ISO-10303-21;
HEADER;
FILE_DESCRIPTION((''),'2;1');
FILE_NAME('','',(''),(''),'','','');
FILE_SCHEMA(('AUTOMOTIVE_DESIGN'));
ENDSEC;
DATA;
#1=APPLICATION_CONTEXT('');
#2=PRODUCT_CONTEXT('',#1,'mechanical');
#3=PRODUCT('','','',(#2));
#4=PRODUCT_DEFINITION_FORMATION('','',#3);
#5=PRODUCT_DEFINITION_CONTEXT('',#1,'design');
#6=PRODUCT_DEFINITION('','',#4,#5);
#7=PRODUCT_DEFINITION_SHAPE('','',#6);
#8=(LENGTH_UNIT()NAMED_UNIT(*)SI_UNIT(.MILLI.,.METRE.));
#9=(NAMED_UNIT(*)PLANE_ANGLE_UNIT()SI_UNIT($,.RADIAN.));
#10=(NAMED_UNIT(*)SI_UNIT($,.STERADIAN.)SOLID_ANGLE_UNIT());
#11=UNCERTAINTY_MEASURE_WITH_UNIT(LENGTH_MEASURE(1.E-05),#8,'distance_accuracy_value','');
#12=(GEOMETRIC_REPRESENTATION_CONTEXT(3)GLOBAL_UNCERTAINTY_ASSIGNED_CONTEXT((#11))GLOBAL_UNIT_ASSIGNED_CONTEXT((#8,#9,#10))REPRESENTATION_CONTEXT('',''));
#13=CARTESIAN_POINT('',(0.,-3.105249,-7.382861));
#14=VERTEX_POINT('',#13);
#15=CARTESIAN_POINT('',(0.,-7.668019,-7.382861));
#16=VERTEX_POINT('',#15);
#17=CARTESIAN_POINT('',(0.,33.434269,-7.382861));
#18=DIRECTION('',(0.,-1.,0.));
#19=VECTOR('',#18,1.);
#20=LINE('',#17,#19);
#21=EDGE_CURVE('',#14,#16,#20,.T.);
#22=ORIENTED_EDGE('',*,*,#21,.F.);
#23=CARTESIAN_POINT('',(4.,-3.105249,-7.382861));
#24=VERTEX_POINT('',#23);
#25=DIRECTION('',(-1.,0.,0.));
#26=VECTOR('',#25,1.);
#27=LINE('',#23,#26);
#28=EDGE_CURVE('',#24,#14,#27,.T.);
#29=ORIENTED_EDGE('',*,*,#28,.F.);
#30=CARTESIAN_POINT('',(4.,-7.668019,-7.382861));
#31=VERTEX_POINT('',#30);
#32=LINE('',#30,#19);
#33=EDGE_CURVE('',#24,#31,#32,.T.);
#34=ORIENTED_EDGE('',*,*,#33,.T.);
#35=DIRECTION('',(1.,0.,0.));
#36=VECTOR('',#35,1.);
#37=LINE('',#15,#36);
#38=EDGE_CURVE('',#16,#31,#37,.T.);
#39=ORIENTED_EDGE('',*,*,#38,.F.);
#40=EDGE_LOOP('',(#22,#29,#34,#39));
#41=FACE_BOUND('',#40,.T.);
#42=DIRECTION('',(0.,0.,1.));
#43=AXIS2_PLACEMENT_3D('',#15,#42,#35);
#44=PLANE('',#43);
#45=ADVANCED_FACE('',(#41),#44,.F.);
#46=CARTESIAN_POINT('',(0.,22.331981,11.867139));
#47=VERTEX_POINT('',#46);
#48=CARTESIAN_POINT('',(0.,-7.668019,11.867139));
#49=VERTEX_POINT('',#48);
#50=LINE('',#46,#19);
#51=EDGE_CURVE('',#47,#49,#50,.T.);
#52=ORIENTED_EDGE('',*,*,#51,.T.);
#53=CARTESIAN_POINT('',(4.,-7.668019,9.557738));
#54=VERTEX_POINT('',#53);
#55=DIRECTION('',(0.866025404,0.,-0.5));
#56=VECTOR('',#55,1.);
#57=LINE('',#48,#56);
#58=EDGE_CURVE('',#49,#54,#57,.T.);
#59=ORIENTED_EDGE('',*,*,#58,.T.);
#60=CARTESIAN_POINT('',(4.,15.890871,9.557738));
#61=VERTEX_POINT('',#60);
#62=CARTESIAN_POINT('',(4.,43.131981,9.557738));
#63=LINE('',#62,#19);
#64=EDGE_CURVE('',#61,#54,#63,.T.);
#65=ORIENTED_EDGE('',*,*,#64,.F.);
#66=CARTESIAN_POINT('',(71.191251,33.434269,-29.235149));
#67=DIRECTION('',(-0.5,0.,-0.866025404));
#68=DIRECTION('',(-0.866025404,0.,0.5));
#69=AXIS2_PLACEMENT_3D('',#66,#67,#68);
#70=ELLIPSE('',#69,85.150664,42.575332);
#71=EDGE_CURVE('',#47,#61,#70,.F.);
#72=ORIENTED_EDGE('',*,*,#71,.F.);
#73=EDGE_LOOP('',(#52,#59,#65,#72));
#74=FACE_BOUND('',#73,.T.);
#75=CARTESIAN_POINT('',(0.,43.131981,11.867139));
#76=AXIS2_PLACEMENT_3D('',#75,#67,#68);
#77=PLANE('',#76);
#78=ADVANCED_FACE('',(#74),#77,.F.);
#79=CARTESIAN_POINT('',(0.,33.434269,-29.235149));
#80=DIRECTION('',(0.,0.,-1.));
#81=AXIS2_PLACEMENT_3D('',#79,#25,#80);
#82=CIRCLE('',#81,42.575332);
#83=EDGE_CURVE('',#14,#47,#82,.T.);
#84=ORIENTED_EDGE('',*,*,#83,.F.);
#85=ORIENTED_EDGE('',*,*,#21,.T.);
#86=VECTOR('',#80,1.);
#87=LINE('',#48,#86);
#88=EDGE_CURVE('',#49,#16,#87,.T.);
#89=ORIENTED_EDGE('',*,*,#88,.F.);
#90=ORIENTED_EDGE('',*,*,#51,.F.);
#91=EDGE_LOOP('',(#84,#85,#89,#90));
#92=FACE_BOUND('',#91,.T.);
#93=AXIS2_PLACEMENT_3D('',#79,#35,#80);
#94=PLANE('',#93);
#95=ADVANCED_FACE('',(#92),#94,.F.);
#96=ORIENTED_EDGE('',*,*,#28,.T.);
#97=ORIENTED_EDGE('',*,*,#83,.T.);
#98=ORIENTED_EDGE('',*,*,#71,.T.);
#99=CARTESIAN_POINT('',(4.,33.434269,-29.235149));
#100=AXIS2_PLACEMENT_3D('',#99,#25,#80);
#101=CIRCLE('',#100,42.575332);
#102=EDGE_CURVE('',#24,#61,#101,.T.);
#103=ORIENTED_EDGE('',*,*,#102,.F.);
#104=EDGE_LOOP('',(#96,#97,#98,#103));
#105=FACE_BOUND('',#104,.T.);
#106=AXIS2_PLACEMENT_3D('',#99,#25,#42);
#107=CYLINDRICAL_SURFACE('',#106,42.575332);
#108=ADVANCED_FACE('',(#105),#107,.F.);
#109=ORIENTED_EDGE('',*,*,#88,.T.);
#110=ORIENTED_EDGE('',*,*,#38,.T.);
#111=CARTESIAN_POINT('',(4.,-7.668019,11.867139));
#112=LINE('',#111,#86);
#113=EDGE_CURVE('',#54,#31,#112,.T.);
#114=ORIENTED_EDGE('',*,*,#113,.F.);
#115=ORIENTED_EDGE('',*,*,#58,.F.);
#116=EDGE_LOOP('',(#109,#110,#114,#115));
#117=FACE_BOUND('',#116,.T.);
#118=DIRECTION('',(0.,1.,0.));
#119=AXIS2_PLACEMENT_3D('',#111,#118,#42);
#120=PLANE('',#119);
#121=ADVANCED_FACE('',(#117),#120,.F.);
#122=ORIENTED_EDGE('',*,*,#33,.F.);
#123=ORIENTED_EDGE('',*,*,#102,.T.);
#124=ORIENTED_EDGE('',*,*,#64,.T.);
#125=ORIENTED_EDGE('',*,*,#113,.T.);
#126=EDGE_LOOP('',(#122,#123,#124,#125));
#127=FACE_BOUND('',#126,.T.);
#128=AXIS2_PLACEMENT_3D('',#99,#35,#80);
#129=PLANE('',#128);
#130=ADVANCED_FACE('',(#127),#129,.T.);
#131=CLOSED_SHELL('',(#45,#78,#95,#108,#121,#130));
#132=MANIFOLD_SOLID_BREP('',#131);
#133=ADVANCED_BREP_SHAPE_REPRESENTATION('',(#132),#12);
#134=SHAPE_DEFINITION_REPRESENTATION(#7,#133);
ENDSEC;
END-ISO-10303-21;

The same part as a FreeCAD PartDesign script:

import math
import FreeCAD as App
import Part
import Sketcher

V = App.Vector
Q = App.Units.Quantity

doc = App.newDocument("Part")
body = doc.addObject("PartDesign::Body", "Body")

# Sketch on YZ plane
sketch1 = body.newObject("Sketcher::SketchObject", "Sketch")
sketch1.AttachmentSupport = (doc.getObject("YZ_Plane"), [""])
sketch1.MapMode = "FlatFace"
sketch1.addGeometry([
    Part.LineSegment(V(22, 12, 0), V(-8, 12, 0)),
    Part.LineSegment(V(-8, 12, 0), V(-8, -18, 0)),
    Part.ArcOfCircle(Part.Circle(V(33, -29, 0), V(0, 0, 1), 43), math.radians(105), math.radians(165)),
], False)
sketch1.addConstraint([
    Sketcher.Constraint("Coincident", 0, 2, 1, 1),
    Sketcher.Constraint("Coincident", 1, 2, 2, 2),
    Sketcher.Constraint("Coincident", 2, 1, 0, 1),
    Sketcher.Constraint("Horizontal", 0),
    Sketcher.Constraint("Vertical", 1),
    Sketcher.Constraint("Equal", 0, 1),
    Sketcher.Constraint("DistanceX", 0, 2, 0, 1, 30.0),
    Sketcher.Constraint("Radius", 2, 42.575332),
    Sketcher.Constraint("DistanceX", -1, 1, 2, 3, 33.434269),
    Sketcher.Constraint("DistanceY", 2, 3, -1, 1, 29.235149),
])
pad1 = body.newObject("PartDesign::Pad", "Pad")
pad1.Profile = sketch1
pad1.Length = 4

# Sketch on YZ plane
sketch2 = body.newObject("Sketcher::SketchObject", "Sketch001")
sketch2.AttachmentSupport = (doc.getObject("YZ_Plane"), [""])
sketch2.MapMode = "FlatFace"
sketch2.AttachmentOffset = App.Placement(V(0, 0, 4), App.Rotation())
sketch2.addGeometry([
    Part.LineSegment(V(13, -7, 0), V(-8, -7, 0)),
    Part.LineSegment(V(-8, -7, 0), V(-8, -18, 0)),
    Part.LineSegment(V(-8, -18, 0), V(13, -18, 0)),
    Part.LineSegment(V(13, -18, 0), V(13, -7, 0)),
], False)
sketch2.addConstraint([
    Sketcher.Constraint("Coincident", 0, 2, 1, 1),
    Sketcher.Constraint("Coincident", 1, 2, 2, 1),
    Sketcher.Constraint("Coincident", 2, 2, 3, 1),
    Sketcher.Constraint("Coincident", 3, 2, 0, 1),
    Sketcher.Constraint("Horizontal", 0),
    Sketcher.Constraint("Vertical", 1),
    Sketcher.Constraint("Horizontal", 2),
    Sketcher.Constraint("Vertical", 3),
    Sketcher.Constraint("DistanceY", 1, 2, 1, 1, 10.75),
    Sketcher.Constraint("DistanceX", 0, 2, 0, 1, 20.327264),
    Sketcher.Constraint("DistanceX", 0, 2, -1, 1, 7.668019),
    Sketcher.Constraint("DistanceY", 0, 2, -1, 1, 7.382861),
])
pocket1 = body.newObject("PartDesign::Pocket", "Pocket")
pocket1.Profile = sketch2
pocket1.Length = 4

# Sketch on XZ plane
sketch3 = body.newObject("Sketcher::SketchObject", "Sketch002")
sketch3.AttachmentSupport = (doc.getObject("XZ_Plane"), [""])
sketch3.MapMode = "FlatFace"
sketch3.AttachmentOffset = App.Placement(V(0, 0, 7.668019), App.Rotation())
sketch3.addGeometry([
    Part.LineSegment(V(0, 11.9, 0), V(4, 9.6, 0)),
    Part.LineSegment(V(4, 9.6, 0), V(4, 11.9, 0)),
    Part.LineSegment(V(4, 11.9, 0), V(0, 11.9, 0)),
], False)
sketch3.addConstraint([
    Sketcher.Constraint("Coincident", 0, 2, 1, 1),
    Sketcher.Constraint("Coincident", 1, 2, 2, 1),
    Sketcher.Constraint("Coincident", 2, 2, 0, 1),
    Sketcher.Constraint("Vertical", 1),
    Sketcher.Constraint("Horizontal", 2),
    Sketcher.Constraint("PointOnObject", 2, 2, -2),
    Sketcher.Constraint("DistanceX", 2, 2, 2, 1, 4.0),
    Sketcher.Constraint("Angle", 0, Q("-30 deg")),
    Sketcher.Constraint("DistanceY", -1, 1, 0, 2, 9.557738),
])
pocket2 = body.newObject("PartDesign::Pocket", "Pocket001")
pocket2.Profile = sketch3
pocket2.Length = 50.8

doc.recompute()
